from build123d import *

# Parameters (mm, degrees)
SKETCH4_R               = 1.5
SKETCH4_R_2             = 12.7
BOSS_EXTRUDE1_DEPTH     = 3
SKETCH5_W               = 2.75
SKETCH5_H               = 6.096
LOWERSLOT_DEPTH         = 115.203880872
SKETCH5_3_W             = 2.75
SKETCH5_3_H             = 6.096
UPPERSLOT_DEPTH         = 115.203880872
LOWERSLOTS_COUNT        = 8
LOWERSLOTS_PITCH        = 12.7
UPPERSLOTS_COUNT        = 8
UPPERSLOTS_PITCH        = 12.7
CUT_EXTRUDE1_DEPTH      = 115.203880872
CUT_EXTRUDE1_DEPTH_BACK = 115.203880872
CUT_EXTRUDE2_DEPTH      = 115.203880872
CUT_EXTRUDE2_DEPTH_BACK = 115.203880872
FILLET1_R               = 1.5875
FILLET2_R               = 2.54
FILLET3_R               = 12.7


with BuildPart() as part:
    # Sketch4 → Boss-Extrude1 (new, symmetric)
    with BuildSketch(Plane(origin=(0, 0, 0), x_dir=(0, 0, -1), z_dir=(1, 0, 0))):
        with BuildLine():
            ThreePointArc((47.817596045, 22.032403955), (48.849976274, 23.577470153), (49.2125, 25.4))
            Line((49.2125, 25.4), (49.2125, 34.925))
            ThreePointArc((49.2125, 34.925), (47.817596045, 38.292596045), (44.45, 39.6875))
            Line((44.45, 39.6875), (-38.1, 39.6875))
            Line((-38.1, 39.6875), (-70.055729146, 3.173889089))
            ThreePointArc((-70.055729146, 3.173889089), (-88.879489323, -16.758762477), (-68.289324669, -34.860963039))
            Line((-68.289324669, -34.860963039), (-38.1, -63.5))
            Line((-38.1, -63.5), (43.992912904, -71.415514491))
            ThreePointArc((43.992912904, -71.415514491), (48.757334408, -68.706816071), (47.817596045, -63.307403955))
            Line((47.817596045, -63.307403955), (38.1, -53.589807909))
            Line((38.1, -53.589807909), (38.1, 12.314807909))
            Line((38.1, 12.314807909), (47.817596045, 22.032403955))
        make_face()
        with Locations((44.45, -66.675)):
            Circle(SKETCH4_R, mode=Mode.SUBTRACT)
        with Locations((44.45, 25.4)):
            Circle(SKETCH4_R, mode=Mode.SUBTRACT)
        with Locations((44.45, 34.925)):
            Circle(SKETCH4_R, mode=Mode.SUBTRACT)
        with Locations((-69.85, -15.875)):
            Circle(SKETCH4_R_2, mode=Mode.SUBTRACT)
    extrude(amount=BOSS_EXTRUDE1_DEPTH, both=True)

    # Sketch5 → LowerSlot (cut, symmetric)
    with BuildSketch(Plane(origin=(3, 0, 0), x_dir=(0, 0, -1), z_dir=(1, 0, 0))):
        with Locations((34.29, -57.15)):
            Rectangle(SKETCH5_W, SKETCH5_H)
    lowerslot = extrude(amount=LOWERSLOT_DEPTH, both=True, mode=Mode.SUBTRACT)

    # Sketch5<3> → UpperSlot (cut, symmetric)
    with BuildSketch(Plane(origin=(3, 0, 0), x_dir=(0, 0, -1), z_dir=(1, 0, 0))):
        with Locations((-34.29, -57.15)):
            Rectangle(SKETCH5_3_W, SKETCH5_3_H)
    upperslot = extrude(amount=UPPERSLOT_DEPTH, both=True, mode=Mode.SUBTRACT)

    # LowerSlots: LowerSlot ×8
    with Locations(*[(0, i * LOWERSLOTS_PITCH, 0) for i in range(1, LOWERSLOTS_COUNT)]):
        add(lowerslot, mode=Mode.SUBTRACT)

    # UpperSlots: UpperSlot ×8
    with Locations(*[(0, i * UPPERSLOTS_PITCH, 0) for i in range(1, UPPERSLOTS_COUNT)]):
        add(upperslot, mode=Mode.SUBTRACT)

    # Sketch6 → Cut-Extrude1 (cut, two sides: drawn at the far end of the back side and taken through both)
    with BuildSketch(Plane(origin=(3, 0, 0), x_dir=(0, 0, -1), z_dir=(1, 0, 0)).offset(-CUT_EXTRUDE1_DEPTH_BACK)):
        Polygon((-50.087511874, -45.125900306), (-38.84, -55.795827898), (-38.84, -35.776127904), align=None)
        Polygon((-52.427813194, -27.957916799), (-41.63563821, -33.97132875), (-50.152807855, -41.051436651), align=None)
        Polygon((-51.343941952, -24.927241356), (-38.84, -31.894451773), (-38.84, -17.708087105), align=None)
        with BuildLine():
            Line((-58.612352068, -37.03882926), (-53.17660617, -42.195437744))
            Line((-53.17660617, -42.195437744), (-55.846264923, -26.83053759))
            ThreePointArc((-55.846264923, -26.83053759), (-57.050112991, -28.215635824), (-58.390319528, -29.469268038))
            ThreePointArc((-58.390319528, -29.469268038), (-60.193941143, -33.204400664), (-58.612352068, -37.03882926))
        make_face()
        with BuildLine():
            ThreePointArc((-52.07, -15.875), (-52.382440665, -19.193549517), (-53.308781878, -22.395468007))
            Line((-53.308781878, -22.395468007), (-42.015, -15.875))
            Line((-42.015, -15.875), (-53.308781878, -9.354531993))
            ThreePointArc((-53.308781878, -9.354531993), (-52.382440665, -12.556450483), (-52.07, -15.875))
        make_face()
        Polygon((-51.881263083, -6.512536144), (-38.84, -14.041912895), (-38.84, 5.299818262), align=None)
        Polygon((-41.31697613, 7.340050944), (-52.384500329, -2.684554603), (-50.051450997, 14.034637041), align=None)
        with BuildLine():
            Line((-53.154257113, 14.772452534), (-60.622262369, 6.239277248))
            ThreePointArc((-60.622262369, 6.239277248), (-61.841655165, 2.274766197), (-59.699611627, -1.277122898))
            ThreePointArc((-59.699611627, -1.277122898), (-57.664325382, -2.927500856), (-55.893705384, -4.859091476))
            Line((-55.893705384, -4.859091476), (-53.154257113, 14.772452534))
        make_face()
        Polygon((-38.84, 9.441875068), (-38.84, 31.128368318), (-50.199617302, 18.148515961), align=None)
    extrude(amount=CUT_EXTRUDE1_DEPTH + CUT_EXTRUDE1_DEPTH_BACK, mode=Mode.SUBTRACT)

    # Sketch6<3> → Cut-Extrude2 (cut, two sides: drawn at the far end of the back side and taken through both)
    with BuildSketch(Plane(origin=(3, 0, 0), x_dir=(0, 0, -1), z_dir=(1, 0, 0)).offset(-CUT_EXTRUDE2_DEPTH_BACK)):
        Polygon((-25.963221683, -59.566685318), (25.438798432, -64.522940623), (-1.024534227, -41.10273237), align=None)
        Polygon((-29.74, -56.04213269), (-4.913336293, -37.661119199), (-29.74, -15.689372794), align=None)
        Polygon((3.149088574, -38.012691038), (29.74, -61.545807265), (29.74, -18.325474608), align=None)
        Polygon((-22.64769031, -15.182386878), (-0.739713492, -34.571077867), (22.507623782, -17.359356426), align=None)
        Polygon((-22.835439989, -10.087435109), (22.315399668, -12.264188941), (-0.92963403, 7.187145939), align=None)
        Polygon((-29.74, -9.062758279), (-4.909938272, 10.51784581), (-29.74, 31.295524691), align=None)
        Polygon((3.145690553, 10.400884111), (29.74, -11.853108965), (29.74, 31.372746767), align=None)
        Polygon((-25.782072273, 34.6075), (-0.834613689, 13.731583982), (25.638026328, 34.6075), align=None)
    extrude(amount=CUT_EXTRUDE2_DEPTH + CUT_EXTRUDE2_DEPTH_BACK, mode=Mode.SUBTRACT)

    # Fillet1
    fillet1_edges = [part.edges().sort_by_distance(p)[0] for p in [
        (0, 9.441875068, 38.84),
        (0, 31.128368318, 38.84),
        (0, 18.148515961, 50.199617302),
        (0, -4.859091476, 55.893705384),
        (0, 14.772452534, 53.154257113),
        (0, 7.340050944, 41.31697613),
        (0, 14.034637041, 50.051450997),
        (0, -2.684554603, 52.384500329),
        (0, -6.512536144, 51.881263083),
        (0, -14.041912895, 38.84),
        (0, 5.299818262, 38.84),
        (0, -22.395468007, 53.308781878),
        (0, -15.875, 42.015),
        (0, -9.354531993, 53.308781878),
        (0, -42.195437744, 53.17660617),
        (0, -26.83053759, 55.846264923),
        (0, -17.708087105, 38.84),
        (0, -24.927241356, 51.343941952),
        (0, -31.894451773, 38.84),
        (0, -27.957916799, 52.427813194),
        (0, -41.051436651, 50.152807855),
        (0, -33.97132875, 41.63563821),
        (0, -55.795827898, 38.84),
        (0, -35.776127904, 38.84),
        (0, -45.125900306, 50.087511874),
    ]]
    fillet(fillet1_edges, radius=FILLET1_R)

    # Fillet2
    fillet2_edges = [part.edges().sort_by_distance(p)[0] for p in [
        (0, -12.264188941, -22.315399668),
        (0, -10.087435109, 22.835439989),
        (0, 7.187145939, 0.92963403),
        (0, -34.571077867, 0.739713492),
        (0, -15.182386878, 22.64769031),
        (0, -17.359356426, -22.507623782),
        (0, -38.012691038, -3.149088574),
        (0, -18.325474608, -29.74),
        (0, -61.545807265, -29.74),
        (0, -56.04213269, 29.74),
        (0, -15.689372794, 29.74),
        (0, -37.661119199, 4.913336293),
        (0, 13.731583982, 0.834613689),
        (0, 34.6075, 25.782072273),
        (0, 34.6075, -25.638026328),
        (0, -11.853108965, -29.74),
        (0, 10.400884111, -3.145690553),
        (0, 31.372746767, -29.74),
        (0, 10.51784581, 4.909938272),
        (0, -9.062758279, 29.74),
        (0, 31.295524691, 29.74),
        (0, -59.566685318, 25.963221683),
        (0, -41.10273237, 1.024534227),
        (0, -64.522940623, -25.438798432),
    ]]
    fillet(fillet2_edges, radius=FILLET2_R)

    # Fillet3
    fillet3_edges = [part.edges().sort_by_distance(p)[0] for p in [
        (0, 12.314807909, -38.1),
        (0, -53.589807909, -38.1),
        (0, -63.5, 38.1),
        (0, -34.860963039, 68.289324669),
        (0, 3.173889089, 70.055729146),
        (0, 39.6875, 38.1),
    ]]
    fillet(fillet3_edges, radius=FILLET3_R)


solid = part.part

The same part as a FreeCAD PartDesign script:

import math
import FreeCAD as App
import Part
import Sketcher
from FreeCAD import Vector
Q = App.Units.Quantity


def edges_at(feature, points):
    """Names of the edges that pass closest to the given points."""
    edges = feature.Shape.Edges
    near = lambda p: min(range(len(edges)), key=lambda i: edges[i].distToShape(Part.Vertex(*p))[0])
    return sorted({f"Edge{near(p) + 1}" for p in points})


def add_polygon(sketch, points):
    """Adds a closed chain of lines whose ends are joined by coincident constraints."""
    first, n = sketch.GeometryCount, len(points)
    for a, b in zip(points, points[1:] + points[:1]):
        sketch.addGeometry(Part.LineSegment(App.Vector(*a, 0), App.Vector(*b, 0)), False)
    for i in range(n):
        sketch.addConstraint(Sketcher.Constraint("Coincident", first + i, 2, first + (i + 1) % n, 1))

doc = App.newDocument("Part")
body = doc.addObject("PartDesign::Body", "Body")

sketch1 = body.newObject("Sketcher::SketchObject", "Sketch")
sketch1.AttachmentSupport = (doc.getObject("YZ_Plane"), [""])
sketch1.MapMode = "FlatFace"
sketch1.addGeometry([
    Part.ArcOfCircle(Part.Circle(Vector(25.4, -44.5, 0), Vector(0, 0, 1), 4.8), math.radians(-135), math.radians(-90)),
    Part.LineSegment(Vector(25.4, -49.2, 0), Vector(34.9, -49.2, 0)),
    Part.ArcOfCircle(Part.Circle(Vector(34.9, -44.4, 0), Vector(0, 0, 1), 4.8), math.radians(-90), math.radians(0)),
    Part.LineSegment(Vector(39.7, -44.5, 0), Vector(39.7, 38.1, 0)),
    Part.LineSegment(Vector(39.7, 38.1, 0), Vector(3.2, 70.1, 0)),
    Part.ArcOfCircle(Part.Circle(Vector(-15.9, 69.8, 0), Vector(0, 0, 1), 19.1), math.radians(1), math.radians(185)),
    Part.LineSegment(Vector(-34.9, 68.3, 0), Vector(-63.5, 38.1, 0)),
    Part.LineSegment(Vector(-63.5, 38.1, 0), Vector(-71.4, -44, 0)),
    Part.ArcOfCircle(Part.Circle(Vector(-66.7, -44.5, 0), Vector(0, 0, 1), 4.8), math.radians(174), math.radians(315)),
    Part.LineSegment(Vector(-63.3, -47.8, 0), Vector(-53.6, -38.1, 0)),
    Part.LineSegment(Vector(-53.6, -38.1, 0), Vector(12.3, -38.1, 0)),
    Part.LineSegment(Vector(12.3, -38.1, 0), Vector(22, -47.8, 0)),
    Part.Circle(Vector(-66.7, -44.5, 0), Vector(0, 0, 1), 1.5),
    Part.Circle(Vector(-15.9, 69.8, 0), Vector(0, 0, 1), 12.7),
    Part.Circle(Vector(25.4, -44.5, 0), Vector(0, 0, 1), 1.5),
    Part.Circle(Vector(34.9, -44.5, 0), Vector(0, 0, 1), 1.5),
], False)
sketch1.addConstraint([
    Sketcher.Constraint("Tangent", 0, 2, 1, 1),
    Sketcher.Constraint("Tangent", 1, 2, 2, 1),
    Sketcher.Constraint("Tangent", 2, 2, 3, 1),
    Sketcher.Constraint("Coincident", 3, 2, 4, 1),
    Sketcher.Constraint("Coincident", 4, 2, 5, 1),
    Sketcher.Constraint("Coincident", 5, 2, 6, 1),
    Sketcher.Constraint("Coincident", 6, 2, 7, 1),
    Sketcher.Constraint("Tangent", 7, 2, 8, 1),
    Sketcher.Constraint("Tangent", 8, 2, 9, 1),
    Sketcher.Constraint("Coincident", 9, 2, 10, 1),
    Sketcher.Constraint("Coincident", 10, 2, 11, 1),
    Sketcher.Constraint("Tangent", 11, 2, 0, 1),
    Sketcher.Constraint("Horizontal", 1),
    Sketcher.Constraint("Vertical", 3),
    Sketcher.Constraint("Horizontal", 10),
    Sketcher.Constraint("Coincident", 12, 3, 8, 3),
    Sketcher.Constraint("Coincident", 13, 3, 5, 3),
    Sketcher.Constraint("Coincident", 14, 3, 0, 3),
    Sketcher.Constraint("Coincident", 15, 3, 2, 3),
    Sketcher.Constraint("Equal", 0, 2),
    Sketcher.Constraint("Equal", 2, 8),
    Sketcher.Constraint("Equal", 12, 14),
    Sketcher.Constraint("Equal", 14, 15),
    Sketcher.Constraint("Perpendicular", 9, 11),
    Sketcher.Constraint("Horizontal", 2, 3, 8, 3),
    Sketcher.Constraint("Horizontal", 3, 2, 6, 2),
    Sketcher.Constraint("Horizontal", 8, 2, 11, 2),
    Sketcher.Constraint("Diameter", 13, Q("1 in")),
    Sketcher.Constraint("Radius", 5, Q("0.75 in")),
    Sketcher.Constraint("DistanceX", -1, 1, 0, 3, Q("1 in")),
    Sketcher.Constraint("Radius", 0, Q("0.1875 in")),
    Sketcher.Constraint("DistanceX", 5, 3, 2, 3, Q("2 in")),
    Sketcher.Constraint("DistanceX", 8, 3, 2, 3, Q("4 in")),
    Sketcher.Constraint("DistanceY", 9, 2, 6, 2, Q("3 in")),
    Sketcher.Constraint("DistanceY", 3, 1, 3, 2, Q("3.25 in")),
    Sketcher.Constraint("DistanceY", -1, 1, 3, 2, Q("1.5 in")),
    Sketcher.Constraint("DistanceX", 6, 2, -1, 1, Q("2.5 in")),
    Sketcher.Constraint("DistanceY", 0, 3, 5, 3, Q("4.5 in")),
    Sketcher.Constraint("Diameter", 12, 3.0),
    Sketcher.Constraint("DistanceX", 1, 1, 1, 2, Q("0.375 in")),
    Sketcher.Constraint("DistanceX", -1, 1, 4, 2, 3.173889),
    Sketcher.Constraint("Distance", 6, 41.612375),
])
pad1 = body.newObject("PartDesign::Pad", "Pad")
pad1.Profile = sketch1
pad1.Length = 6
pad1.Midplane = True

sketch2 = body.newObject("Sketcher::SketchObject", "Sketch001")
sketch2.AttachmentSupport = (doc.getObject("YZ_Plane"), [""])
sketch2.MapMode = "FlatFace"
sketch2.AttachmentOffset = App.Placement(Vector(0, 0, 3), App.Rotation())
add_polygon(sketch2, [(-54.1, -32.9), (-60.2, -32.9), (-60.2, -35.7), (-54.1, -35.7)])
sketch2.addConstraint([
    Sketcher.Constraint("Horizontal", 0),
    Sketcher.Constraint("Vertical", 1),
    Sketcher.Constraint("Horizontal", 2),
    Sketcher.Constraint("Vertical", 3),
    Sketcher.Constraint("DistanceX", 0, 2, 0, 1, Q("0.24 in")),
    Sketcher.Constraint("DistanceX", 0, 2, -1, 1, Q("2.37 in")),
    Sketcher.Constraint("DistanceY", 1, 2, 1, 1, 2.75),
    Sketcher.Constraint("DistanceY", 0, 2, -1, 1, 32.915),
])
pocket1 = body.newObject("PartDesign::Pocket", "Pocket")
pocket1.Profile = sketch2
pocket1.Length = 230.407762
pocket1.Midplane = True

sketch3 = body.newObject("Sketcher::SketchObject", "Sketch002")
sketch3.AttachmentSupport = (doc.getObject("YZ_Plane"), [""])
sketch3.MapMode = "FlatFace"
sketch3.AttachmentOffset = App.Placement(Vector(0, 0, 3), App.Rotation())
add_polygon(sketch3, [(-54.1, 35.7), (-60.2, 35.7), (-60.2, 32.9), (-54.1, 32.9)])
sketch3.addConstraint([
    Sketcher.Constraint("Horizontal", 0),
    Sketcher.Constraint("Vertical", 1),
    Sketcher.Constraint("Horizontal", 2),
    Sketcher.Constraint("Vertical", 3),
    Sketcher.Constraint("DistanceX", 0, 2, 0, 1, Q("0.24 in")),
    Sketcher.Constraint("DistanceX", 0, 2, -1, 1, Q("2.37 in")),
    Sketcher.Constraint("DistanceY", 1, 2, 1, 1, 2.75),
    Sketcher.Constraint("DistanceY", -1, 1, 0, 2, 35.665),
])
pocket2 = body.newObject("PartDesign::Pocket", "Pocket001")
pocket2.Profile = sketch3
pocket2.Length = 230.407762
pocket2.Midplane = True
doc.recompute()

linearpattern = body.newObject("PartDesign::LinearPattern", "LinearPattern")
linearpattern.Originals = [pocket1]
linearpattern.Direction = (doc.getObject("Y_Axis"), [""])
linearpattern.Mode = "offset"
linearpattern.Offset = Q("0.5 in")
linearpattern.Occurrences = 8
body.Tip = linearpattern
doc.recompute()

linearpattern2 = body.newObject("PartDesign::LinearPattern", "LinearPattern001")
linearpattern2.Originals = [pocket2]
linearpattern2.Direction = (doc.getObject("Y_Axis"), [""])
linearpattern2.Mode = "offset"
linearpattern2.Offset = Q("0.5 in")
linearpattern2.Occurrences = 8
body.Tip = linearpattern2

sketch4 = body.newObject("Sketcher::SketchObject", "Sketch003")
sketch4.AttachmentSupport = (doc.getObject("YZ_Plane"), [""])
sketch4.MapMode = "FlatFace"
sketch4.AttachmentOffset = App.Placement(Vector(0, 0, 3), App.Rotation())
add_polygon(sketch4, [(-45.1, 50.1), (-55.8, 38.8), (-35.8, 38.8)])
add_polygon(sketch4, [(-34, 41.6), (-28, 52.4), (-41.1, 50.2)])
add_polygon(sketch4, [(-24.9, 51.3), (-31.9, 38.8), (-17.7, 38.8)])
sketch4.addGeometry(Part.LineSegment(Vector(-37, 58.6, 0), Vector(-42.2, 53.2, 0)), False)
sketch4.addGeometry(Part.LineSegment(Vector(-42.2, 53.2, 0), Vector(-26.8, 55.8, 0)), False)
sketch4.addGeometry(Part.ArcOfCircle(Part.Circle(Vector(-15.9, 69.9, 0), Vector(0, 0, 1), 17.8), math.radians(-139.87), math.radians(-128.04)), False)
sketch4.addGeometry(Part.ArcOfCircle(Part.Circle(Vector(-33.4, 55.1, 0), Vector(0, 0, 1), 5.1), math.radians(40), math.radians(137)), False)
sketch4.addGeometry(Part.ArcOfCircle(Part.Circle(Vector(-15.9, 69.8, 0), Vector(0, 0, 1), 17.8), math.radians(-112), math.radians(-90)), False)
sketch4.addGeometry(Part.LineSegment(Vector(-22.4, 53.3, 0), Vector(-15.9, 42, 0)), False)
sketch4.addGeometry(Part.LineSegment(Vector(-15.9, 42, 0), Vector(-9.4, 53.3, 0)), False)
sketch4.addGeometry(Part.ArcOfCircle(Part.Circle(Vector(-15.9, 69.8, 0), Vector(0, 0, 1), 17.8), math.radians(-90), math.radians(-68)), False)
add_polygon(sketch4, [(-6.5, 51.9), (-14, 38.8), (5.3, 38.8)])
add_polygon(sketch4, [(-2.7, 52.4), (7.3, 41.3), (14, 50.1)])
sketch4.addGeometry(Part.LineSegment(Vector(14.8, 53.2, 0), Vector(6.2, 60.6, 0)), False)
sketch4.addGeometry(Part.ArcOfCircle(Part.Circle(Vector(2.9, 56.8, 0), Vector(0, 0, 1), 5.1), math.radians(49), math.radians(145)), False)
sketch4.addGeometry(Part.ArcOfCircle(Part.Circle(Vector(-15.9, 69.9, 0), Vector(0, 0, 1), 17.8), math.radians(-51.72), math.radians(-34.81)), False)
sketch4.addGeometry(Part.LineSegment(Vector(-4.9, 55.9, 0), Vector(14.8, 53.2, 0)), False)
add_polygon(sketch4, [(9.4, 38.8), (31.1, 38.8), (18.1, 50.2)])
sketch4.addConstraint([
    Sketcher.Constraint("Coincident", 9, 2, 10, 1),
    Sketcher.Constraint("Coincident", 10, 2, 11, 2),
    Sketcher.Constraint("Tangent", 11, 1, 12, 1),
    Sketcher.Constraint("Tangent", 12, 2, 9, 1),
    Sketcher.Constraint("Coincident", 13, 1, 14, 1),
    Sketcher.Constraint("Coincident", 14, 2, 15, 1),
    Sketcher.Constraint("Coincident", 15, 2, 16, 2),
    Sketcher.Constraint("Tangent", 16, 1, 13, 2),
    Sketcher.Constraint("Tangent", 23, 2, 24, 1),
    Sketcher.Constraint("Tangent", 24, 2, 25, 2),
    Sketcher.Constraint("Coincident", 25, 1, 26, 1),
    Sketcher.Constraint("Coincident", 26, 2, 23, 1),
    Sketcher.Constraint("Horizontal", 1),
    Sketcher.Constraint("Horizontal", 7),
    Sketcher.Constraint("Horizontal", 18),
    Sketcher.Constraint("Horizontal", 27),
    Sketcher.Constraint("Coincident", 13, 3, 11, 3),
    Sketcher.Constraint("Coincident", 25, 3, 11, 3),
    Sketcher.Constraint("Equal", 11, 13),
    Sketcher.Constraint("Equal", 13, 16),
    Sketcher.Constraint("Equal", 12, 24),
    Sketcher.Constraint("Equal", 16, 25),
    Sketcher.Constraint("Parallel", 2, 5),
    Sketcher.Constraint("Parallel", 3, 6),
    Sketcher.Constraint("Parallel", 0, 9),
    Sketcher.Constraint("Parallel", 4, 10),
    Sketcher.Constraint("Parallel", 8, 14),
    Sketcher.Constraint("Parallel", 15, 17),
    Sketcher.Constraint("Parallel", 19, 20),
    Sketcher.Constraint("Parallel", 22, 26),
    Sketcher.Constraint("Parallel", 23, 28),
    Sketcher.Constraint("Parallel", 21, 29),
    Sketcher.Constraint("Horizontal", 1, 2, 6, 2),
    Sketcher.Constraint("Horizontal", 13, 1, 15, 2),
    Sketcher.Constraint("Horizontal", 7, 2, 17, 2),
    Sketcher.Constraint("Horizontal", 18, 2, 27, 2),
    Sketcher.Constraint("Vertical", 25, 3, 14, 2),
    Sketcher.Constraint("Vertical", 14, 2, 16, 1),
    Sketcher.Constraint("Radius", 11, Q("0.7 in")),
    Sketcher.Constraint("Radius", 12, Q("0.2 in")),
    Sketcher.Constraint("Angle", 8, Q("120 deg")),
    Sketcher.Constraint("DistanceY", -1, 1, 11, 3, Q("2.75 in")),
    Sketcher.Constraint("DistanceX", 11, 3, -1, 1, Q("0.625 in")),
    Sketcher.Constraint("DistanceY", 7, 2, 14, 2, Q("0.125 in")),
    Sketcher.Constraint("DistanceX", 1, 1, 1, 2, 20.0197),
    Sketcher.Constraint("Distance", 6, 14.314),
    Sketcher.Constraint("DistanceX", 18, 1, 18, 2, 19.341731),
    Sketcher.Constraint("DistanceX", -1, 1, 24, 3, 2.893699),
    Sketcher.Constraint("DistanceY", -1, 1, 0, 2, 38.84),
    Sketcher.Constraint("DistanceX", 2, 2, -1, 1, 45.1259),
    Sketcher.Constraint("DistanceY", -1, 1, 22, 2, 52.3845),
    Sketcher.Constraint("DistanceY", 2, 2, 3, 2, 2.340301),
    Sketcher.Constraint("DistanceX", 1, 2, 5, 2, 1.804799),
    Sketcher.Constraint("DistanceX", 9, 2, 4, 2, 1.144001),
    Sketcher.Constraint("DistanceY", 4, 2, 9, 2, 3.023798),
    Sketcher.Constraint("DistanceX", 4, 2, 10, 2, 14.220899),
    Sketcher.Constraint("DistanceX", 11, 1, 13, 1, 7.0738),
    Sketcher.Constraint("DistanceY", 19, 2, 23, 2, 8.740999),
    Sketcher.Constraint("DistanceX", 24, 2, 23, 2, 7.5164),
    Sketcher.Constraint("DistanceX", 20, 2, 26, 2, 7.432402),
    Sketcher.Constraint("Distance", 0, 15.503351),
    Sketcher.Constraint("Distance", 3, 12.354439),
    Sketcher.Constraint("Distance", 4, 13.289692),
    Sketcher.Constraint("Distance", 20, 14.932609),
    Sketcher.Constraint("Distance", 26, 19.821758),
    Sketcher.Constraint("Distance", 29, 14.31246),
    Sketcher.Constraint("DistanceX", 27, 1, 27, 2, 21.686493),
    Sketcher.Constraint("DistanceX", 6, 2, -1, 1, 31.894452),
    Sketcher.Constraint("DistanceX", -1, 1, 18, 2, 5.299818),
    Sketcher.Constraint("DistanceX", -1, 1, 20, 2, 7.340051),
    Sketcher.Constraint("DistanceX", -1, 1, 27, 2, 31.128368),
])
pocket3 = body.newObject("PartDesign::Pocket", "Pocket002")
pocket3.Profile = sketch4
pocket3.Type = "ThroughAll"
pocket3.Midplane = True

sketch5 = body.newObject("Sketcher::SketchObject", "Sketch004")
sketch5.AttachmentSupport = (doc.getObject("YZ_Plane"), [""])
sketch5.MapMode = "FlatFace"
sketch5.AttachmentOffset = App.Placement(Vector(0, 0, 3), App.Rotation())
add_polygon(sketch5, [(-60, 26), (-65, -25), (-41, 1)])
add_polygon(sketch5, [(-56, 30), (-38, 5), (-16, 30)])
add_polygon(sketch5, [(-38, -3), (-62, -30), (-18, -30)])
add_polygon(sketch5, [(-15, 23), (-35, 1), (-17, -23)])
add_polygon(sketch5, [(-10, 23), (-12, -22), (7, 1)])
add_polygon(sketch5, [(-9, 30), (11, 5), (31, 30)])
add_polygon(sketch5, [(10, -3), (-12, -30), (31, -30)])
add_polygon(sketch5, [(35, 26), (14, 1), (35, -26)])
sketch5.addConstraint([
    Sketcher.Constraint("Horizontal", 5),
    Sketcher.Constraint("Horizontal", 7),
    Sketcher.Constraint("Horizontal", 17),
    Sketcher.Constraint("Horizontal", 19),
    Sketcher.Constraint("Vertical", 23),
    Sketcher.Constraint("Parallel", 2, 3),
    Sketcher.Constraint("Parallel", 1, 4),
    Sketcher.Constraint("Parallel", 4, 6),
    Sketcher.Constraint("Parallel", 3, 8),
    Sketcher.Constraint("Parallel", 6, 9),
    Sketcher.Constraint("Parallel", 8, 10),
    Sketcher.Constraint("Parallel", 11, 12),
    Sketcher.Constraint("Parallel", 14, 15),
    Sketcher.Constraint("Parallel", 13, 16),
    Sketcher.Constraint("Parallel", 16, 18),
    Sketcher.Constraint("Parallel", 15, 20),
    Sketcher.Constraint("Parallel", 18, 21),
    Sketcher.Constraint("Parallel", 20, 22),
    Sketcher.Constraint("Horizontal", 5, 2, 16, 2),
    Sketcher.Constraint("Horizontal", 7, 2, 18, 2),
    Sketcher.Constraint("DistanceY", 23, 1, 23, 2, 51.420099),
    Sketcher.Constraint("DistanceX", -1, 1, 22, 2, Q("1.3625 in")),
    Sketcher.Constraint("Distance", 15, 31.621702),
    Sketcher.Constraint("DistanceX", 5, 2, 5, 1, 40.35276),
    Sketcher.Constraint("DistanceY", 0, 2, -1, 1, 25.438798),
    Sketcher.Constraint("DistanceY", -1, 1, 4, 2, 29.74),
    Sketcher.Constraint("DistanceY", 6, 2, -1, 1, 29.74),
    Sketcher.Constraint("DistanceY", 12, 2, -1, 1, 22.3154),
    Sketcher.Constraint("DistanceX", 5, 2, 1, 2, 14.9394),
    Sketcher.Constraint("DistanceX", 7, 2, 4, 2, 2.636102),
    Sketcher.Constraint("DistanceX", 13, 2, 15, 2, 3.3307),
    Sketcher.Constraint("DistanceY", 15, 2, 14, 2, 17.925502),
    Sketcher.Constraint("DistanceX", 13, 2, 19, 2, 24.185601),
    Sketcher.Constraint("DistanceX", 20, 2, 21, 2, 3.3307),
    Sketcher.Constraint("Distance", 0, 51.640412),
    Sketcher.Constraint("Distance", 3, 30.890531),
    Sketcher.Constraint("Distance", 4, 33.152992),
    Sketcher.Constraint("Distance", 6, 35.50893),
    Sketcher.Constraint("Distance", 9, 29.25544),
    Sketcher.Constraint("Distance", 11, 45.20776),
    Sketcher.Constraint("Distance", 12, 45.203281),
    Sketcher.Constraint("Distance", 14, 27.897589),
    Sketcher.Constraint("DistanceX", 19, 1, 19, 2, 43.225856),
    Sketcher.Constraint("DistanceX", 0, 2, -1, 1, 64.522941),
    Sketcher.Constraint("DistanceY", -1, 1, 2, 2, 25.963222),
    Sketcher.Constraint("DistanceY", -1, 1, 11, 2, 22.64769),
    Sketcher.Constraint("DistanceX", 3, 2, 9, 2, 3.090041),
    Sketcher.Constraint("DistanceY", 21, 2, 13, 2, 0.09502),
])
pocket4 = body.newObject("PartDesign::Pocket", "Pocket003")
pocket4.Profile = sketch5
pocket4.Type = "ThroughAll"
pocket4.Midplane = True
doc.recompute()

fillet = body.newObject("PartDesign::Fillet", "Fillet")
fillet.Base = (pocket4, edges_at(pocket4, [
    (0, 9.442, 38.84),
    (0, 31.128, 38.84),
    (0, 18.149, 50.2),
    (0, -4.859, 55.894),
    (0, 14.772, 53.154),
    (0, 7.34, 41.317),
    (0, 14.035, 50.051),
    (0, -2.685, 52.385),
    (0, -6.513, 51.881),
    (0, -14.042, 38.84),
    (0, 5.3, 38.84),
    (0, -22.395, 53.309),
    (0, -15.875, 42.015),
    (0, -9.355, 53.309),
    (0, -42.195, 53.177),
    (0, -26.831, 55.846),
    (0, -17.708, 38.84),
    (0, -24.927, 51.344),
    (0, -31.894, 38.84),
    (0, -27.958, 52.428),
    (0, -41.051, 50.153),
    (0, -33.971, 41.636),
    (0, -55.796, 38.84),
    (0, -35.776, 38.84),
    (0, -45.126, 50.088),
]))
fillet.Radius = Q("0.0625 in")
doc.recompute()

fillet2 = body.newObject("PartDesign::Fillet", "Fillet001")
fillet2.Base = (fillet, edges_at(fillet, [
    (0, -12.264, -22.315),
    (0, -10.087, 22.835),
    (0, 7.187, 0.93),
    (0, -34.571, 0.74),
    (0, -15.182, 22.648),
    (0, -17.359, -22.508),
    (0, -38.013, -3.149),
    (0, -18.325, -29.74),
    (0, -61.546, -29.74),
    (0, -56.042, 29.74),
    (0, -15.689, 29.74),
    (0, -37.661, 4.913),
    (0, 13.732, 0.835),
    (0, 34.608, 25.782),
    (0, 34.608, -25.638),
    (0, -11.853, -29.74),
    (0, 10.401, -3.146),
    (0, 31.373, -29.74),
    (0, 10.518, 4.91),
    (0, -9.063, 29.74),
    (0, 31.296, 29.74),
    (0, -59.567, 25.963),
    (0, -41.103, 1.025),
    (0, -64.523, -25.439),
]))
fillet2.Radius = Q("0.1 in")
doc.recompute()

fillet3 = body.newObject("PartDesign::Fillet", "Fillet002")
fillet3.Base = (fillet2, edges_at(fillet2, [
    (0, 12.315, -38.1),
    (0, -53.59, -38.1),
    (0, -63.5, 38.1),
    (0, -34.861, 68.289),
    (0, 3.174, 70.056),
    (0, 39.688, 38.1),
]))
fillet3.Radius = Q("0.5 in")

doc.recompute()
